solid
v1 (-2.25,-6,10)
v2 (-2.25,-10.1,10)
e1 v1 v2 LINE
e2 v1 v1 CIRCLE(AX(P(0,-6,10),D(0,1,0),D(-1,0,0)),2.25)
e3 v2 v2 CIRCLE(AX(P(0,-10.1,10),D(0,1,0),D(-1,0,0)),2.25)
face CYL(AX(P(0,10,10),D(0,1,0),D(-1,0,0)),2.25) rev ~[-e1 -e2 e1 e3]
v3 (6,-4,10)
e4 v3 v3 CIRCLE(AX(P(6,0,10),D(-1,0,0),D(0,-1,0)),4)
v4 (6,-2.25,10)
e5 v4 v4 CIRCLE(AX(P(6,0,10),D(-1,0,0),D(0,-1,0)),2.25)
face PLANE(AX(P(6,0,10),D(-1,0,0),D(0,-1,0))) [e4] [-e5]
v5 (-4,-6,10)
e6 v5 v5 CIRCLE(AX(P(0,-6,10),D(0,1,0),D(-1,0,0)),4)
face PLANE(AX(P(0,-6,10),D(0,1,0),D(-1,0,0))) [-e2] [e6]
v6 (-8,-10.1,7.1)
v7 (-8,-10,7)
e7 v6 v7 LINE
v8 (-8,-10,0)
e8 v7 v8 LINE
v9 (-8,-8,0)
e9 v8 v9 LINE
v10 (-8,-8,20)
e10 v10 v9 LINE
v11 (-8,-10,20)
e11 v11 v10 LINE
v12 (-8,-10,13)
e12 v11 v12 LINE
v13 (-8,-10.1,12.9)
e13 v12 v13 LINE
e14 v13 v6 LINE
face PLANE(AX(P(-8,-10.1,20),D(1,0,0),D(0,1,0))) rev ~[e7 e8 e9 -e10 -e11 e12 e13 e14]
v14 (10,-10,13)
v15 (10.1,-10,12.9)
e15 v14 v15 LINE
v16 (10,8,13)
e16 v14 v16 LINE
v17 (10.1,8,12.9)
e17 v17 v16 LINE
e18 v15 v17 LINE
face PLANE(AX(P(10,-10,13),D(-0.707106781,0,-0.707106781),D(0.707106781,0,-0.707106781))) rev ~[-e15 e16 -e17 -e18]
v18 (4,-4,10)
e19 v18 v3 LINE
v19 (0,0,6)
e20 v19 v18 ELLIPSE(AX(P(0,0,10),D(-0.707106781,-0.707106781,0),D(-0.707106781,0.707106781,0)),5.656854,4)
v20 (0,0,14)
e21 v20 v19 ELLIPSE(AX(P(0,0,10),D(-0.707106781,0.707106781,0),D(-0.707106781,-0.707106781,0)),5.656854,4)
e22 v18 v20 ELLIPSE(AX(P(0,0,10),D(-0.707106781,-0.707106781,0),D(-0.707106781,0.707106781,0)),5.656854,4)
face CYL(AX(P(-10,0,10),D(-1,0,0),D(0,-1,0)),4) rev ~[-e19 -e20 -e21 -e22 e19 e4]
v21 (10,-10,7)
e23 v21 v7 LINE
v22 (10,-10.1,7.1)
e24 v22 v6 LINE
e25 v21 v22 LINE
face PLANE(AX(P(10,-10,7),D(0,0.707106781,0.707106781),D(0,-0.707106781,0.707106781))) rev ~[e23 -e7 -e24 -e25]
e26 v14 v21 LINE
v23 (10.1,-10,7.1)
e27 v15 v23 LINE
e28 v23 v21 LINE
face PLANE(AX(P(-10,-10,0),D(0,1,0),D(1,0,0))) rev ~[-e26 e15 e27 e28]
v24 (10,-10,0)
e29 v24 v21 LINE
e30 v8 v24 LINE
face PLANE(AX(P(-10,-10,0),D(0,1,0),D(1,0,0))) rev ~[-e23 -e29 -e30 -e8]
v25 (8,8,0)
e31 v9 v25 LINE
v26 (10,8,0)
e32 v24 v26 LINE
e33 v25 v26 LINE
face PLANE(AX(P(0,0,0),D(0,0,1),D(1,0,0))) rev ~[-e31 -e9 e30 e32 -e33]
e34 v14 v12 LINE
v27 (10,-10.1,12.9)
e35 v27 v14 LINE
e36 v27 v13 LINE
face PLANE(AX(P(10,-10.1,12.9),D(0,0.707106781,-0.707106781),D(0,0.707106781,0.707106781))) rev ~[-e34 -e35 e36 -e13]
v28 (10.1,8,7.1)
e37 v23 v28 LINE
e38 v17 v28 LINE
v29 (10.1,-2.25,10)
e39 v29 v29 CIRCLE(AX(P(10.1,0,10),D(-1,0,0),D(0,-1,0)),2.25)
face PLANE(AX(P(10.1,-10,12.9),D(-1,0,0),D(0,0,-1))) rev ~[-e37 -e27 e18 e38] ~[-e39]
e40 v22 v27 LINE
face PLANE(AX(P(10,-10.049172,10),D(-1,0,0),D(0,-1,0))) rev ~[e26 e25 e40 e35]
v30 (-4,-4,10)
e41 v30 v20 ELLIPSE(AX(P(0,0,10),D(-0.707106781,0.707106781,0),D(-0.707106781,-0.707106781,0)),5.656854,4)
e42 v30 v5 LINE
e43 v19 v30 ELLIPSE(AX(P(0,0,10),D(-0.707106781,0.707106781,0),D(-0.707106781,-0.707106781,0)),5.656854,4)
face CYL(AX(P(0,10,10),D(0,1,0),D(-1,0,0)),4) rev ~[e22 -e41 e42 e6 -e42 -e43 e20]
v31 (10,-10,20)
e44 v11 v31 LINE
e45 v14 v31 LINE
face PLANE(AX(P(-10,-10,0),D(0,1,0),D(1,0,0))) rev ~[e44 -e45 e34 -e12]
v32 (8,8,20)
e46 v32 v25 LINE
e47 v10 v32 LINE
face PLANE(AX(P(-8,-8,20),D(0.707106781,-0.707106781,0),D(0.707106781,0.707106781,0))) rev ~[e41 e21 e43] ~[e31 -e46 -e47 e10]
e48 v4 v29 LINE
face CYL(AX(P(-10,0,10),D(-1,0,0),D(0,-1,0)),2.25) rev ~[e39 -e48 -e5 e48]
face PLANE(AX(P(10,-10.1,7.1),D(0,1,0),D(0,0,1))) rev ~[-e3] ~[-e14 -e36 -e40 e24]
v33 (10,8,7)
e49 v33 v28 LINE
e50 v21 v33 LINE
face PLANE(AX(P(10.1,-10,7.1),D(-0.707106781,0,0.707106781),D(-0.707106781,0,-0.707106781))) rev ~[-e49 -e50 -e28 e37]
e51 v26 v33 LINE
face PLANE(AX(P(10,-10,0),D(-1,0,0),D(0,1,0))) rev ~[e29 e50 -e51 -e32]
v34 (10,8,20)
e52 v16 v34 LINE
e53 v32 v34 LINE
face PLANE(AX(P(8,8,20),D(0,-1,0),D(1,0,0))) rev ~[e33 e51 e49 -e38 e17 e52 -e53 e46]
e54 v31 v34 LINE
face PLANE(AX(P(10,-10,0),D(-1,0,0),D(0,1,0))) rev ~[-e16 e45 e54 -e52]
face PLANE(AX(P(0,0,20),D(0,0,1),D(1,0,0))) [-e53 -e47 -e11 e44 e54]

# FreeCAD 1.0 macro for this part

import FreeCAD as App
import Part
import Sketcher

V = App.Vector


def add_polygon(sketch, points):
    """Adds a closed chain of lines whose ends are joined by coincident constraints."""
    first, n = sketch.GeometryCount, len(points)
    for a, b in zip(points, points[1:] + points[:1]):
        sketch.addGeometry(Part.LineSegment(App.Vector(*a, 0), App.Vector(*b, 0)), False)
    for i in range(n):
        sketch.addConstraint(Sketcher.Constraint("Coincident", first + i, 2, first + (i + 1) % n, 1))

doc = App.newDocument("Part")
body = doc.addObject("PartDesign::Body", "Body")

sketch1 = body.newObject("Sketcher::SketchObject", "Sketch")
sketch1.AttachmentSupport = (doc.getObject("XY_Plane"), [""])
sketch1.MapMode = "FlatFace"
add_polygon(sketch1, [(-10, 10), (-10, -10), (10, -10), (10, 10)])
sketch1.addConstraint([
    Sketcher.Constraint("Vertical", 0),
    Sketcher.Constraint("Horizontal", 1),
    Sketcher.Constraint("Vertical", 2),
    Sketcher.Constraint("Horizontal", 3),
    Sketcher.Constraint("Symmetric", 0, 2, 2, 2, -1, 1),
    Sketcher.Constraint("Equal", 3, 0),
    Sketcher.Constraint("DistanceX", 1, 1, 1, 2, 20.0),
])
pad1 = body.newObject("PartDesign::Pad", "Pad")
pad1.Profile = sketch1
pad1.Length = 20

sketch2 = body.newObject("Sketcher::SketchObject", "Sketch001")
sketch2.AttachmentSupport = (doc.getObject("XZ_Plane"), [""])
sketch2.MapMode = "FlatFace"
sketch2.AttachmentOffset = App.Placement(V(0, 0, 10), App.Rotation())
add_polygon(sketch2, [(10.1, 12.9), (10, 13), (10, 7), (10.1, 7.1)])
sketch2.addConstraint([
    Sketcher.Constraint("Vertical", 1),
    Sketcher.Constraint("Vertical", 3),
    Sketcher.Constraint("Perpendicular", 0, 2),
    Sketcher.Constraint("Equal", 0, 2),
    Sketcher.Constraint("DistanceY", 1, 2, 1, 1, 6.0),
    Sketcher.Constraint("DistanceY", 3, 1, 3, 2, 5.8),
    Sketcher.Constraint("DistanceX", -1, 1, 0, 2, 10.0),
    Sketcher.Constraint("DistanceY", -1, 1, 0, 2, 13.0),
])
pad2 = body.newObject("PartDesign::Pad", "Pad001")
pad2.Profile = sketch2
pad2.Length = 20
pad2.Reversed = True

sketch3 = body.newObject("Sketcher::SketchObject", "Sketch002")
sketch3.AttachmentSupport = (doc.getObject("YZ_Plane"), [""])
sketch3.MapMode = "FlatFace"
sketch3.AttachmentOffset = App.Placement(V(0, 0, 10), App.Rotation())
add_polygon(sketch3, [(-10, 7), (-10, 13), (-10.1, 12.9), (-10.1, 7.1)])
sketch3.addConstraint([
    Sketcher.Constraint("Vertical", 0),
    Sketcher.Constraint("Vertical", 2),
    Sketcher.Constraint("Perpendicular", 1, 3),
    Sketcher.Constraint("Equal", 1, 3),
    Sketcher.Constraint("DistanceY", 0, 1, 0, 2, 6.0),
    Sketcher.Constraint("DistanceY", 2, 2, 2, 1, 5.8),
    Sketcher.Constraint("DistanceX", 0, 2, -1, 1, 10.0),
    Sketcher.Constraint("DistanceY", -1, 1, 0, 2, 13.0),
])
pad3 = body.newObject("PartDesign::Pad", "Pad002")
pad3.Profile = sketch3
pad3.Length = 20
pad3.Reversed = True

sketch4 = body.newObject("Sketcher::SketchObject", "Sketch003")
sketch4.AttachmentSupport = (doc.getObject("YZ_Plane"), [""])
sketch4.MapMode = "FlatFace"
sketch4.AttachmentOffset = App.Placement(V(0, 0, -10), App.Rotation())
sketch4.addGeometry([
    Part.Circle(V(-20, 10, 0), V(0, 0, 1), 2.25),
    Part.Circle(V(0, 10, 0), V(0, 0, 1), 2.25),
], False)
sketch4.addConstraint([
    Sketcher.Constraint("Equal", 0, 1),
    Sketcher.Constraint("PointOnObject", 1, 3, -2),
    Sketcher.Constraint("Horizontal", 0, 3, 1, 3),
    Sketcher.Constraint("Diameter", 0, 4.5),
    Sketcher.Constraint("DistanceX", 0, 3, -1, 1, 20.0),
    Sketcher.Constraint("DistanceY", -1, 1, 0, 3, 10.0),
])
pocket1 = body.newObject("PartDesign::Pocket", "Pocket")
pocket1.Profile = sketch4
pocket1.Length = 20.1
pocket1.Reversed = True

sketch5 = body.newObject("Sketcher::SketchObject", "Sketch004")
sketch5.AttachmentSupport = (doc.getObject("YZ_Plane"), [""])
sketch5.MapMode = "FlatFace"
sketch5.AttachmentOffset = App.Placement(V(0, 0, -10), App.Rotation())
sketch5.addGeometry([
    Part.Circle(V(-20, 10, 0), V(0, 0, 1), 4),
    Part.Circle(V(0, 10, 0), V(0, 0, 1), 4),
], False)
sketch5.addConstraint([
    Sketcher.Constraint("Equal", 0, 1),
    Sketcher.Constraint("PointOnObject", 1, 3, -2),
    Sketcher.Constraint("Horizontal", 0, 3, 1, 3),
    Sketcher.Constraint("Diameter", 0, 8.0),
    Sketcher.Constraint("DistanceX", 0, 3, -1, 1, 20.0),
    Sketcher.Constraint("DistanceY", -1, 1, 0, 3, 10.0),
])
pocket2 = body.newObject("PartDesign::Pocket", "Pocket001")
pocket2.Profile = sketch5
pocket2.Length = 16
pocket2.Reversed = True

sketch6 = body.newObject("Sketcher::SketchObject", "Sketch005")
sketch6.AttachmentSupport = (doc.getObject("XZ_Plane"), [""])
sketch6.MapMode = "FlatFace"
sketch6.AttachmentOffset = App.Placement(V(0, 0, -10), App.Rotation())
sketch6.addGeometry([
    Part.Circle(V(0, 10, 0), V(0, 0, 1), 2.25),
    Part.Circle(V(-20, 10, 0), V(0, 0, 1), 2.25),
], False)
sketch6.addConstraint([
    Sketcher.Constraint("Equal", 0, 1),
    Sketcher.Constraint("PointOnObject", 0, 3, -2),
    Sketcher.Constraint("Horizontal", 0, 3, 1, 3),
    Sketcher.Constraint("Diameter", 0, 4.5),
    Sketcher.Constraint("DistanceY", -1, 1, 0, 3, 10.0),
    Sketcher.Constraint("DistanceX", 1, 3, -1, 1, 20.0),
])
pocket3 = body.newObject("PartDesign::Pocket", "Pocket002")
pocket3.Profile = sketch6
pocket3.Length = 20.1
pocket3.Reversed = True

sketch7 = body.newObject("Sketcher::SketchObject", "Sketch006")
sketch7.AttachmentSupport = (doc.getObject("XZ_Plane"), [""])
sketch7.MapMode = "FlatFace"
sketch7.AttachmentOffset = App.Placement(V(0, 0, -10), App.Rotation())
sketch7.addGeometry([
    Part.Circle(V(0, 10, 0), V(0, 0, 1), 4),
    Part.Circle(V(-20, 10, 0), V(0, 0, 1), 4),
], False)
sketch7.addConstraint([
    Sketcher.Constraint("Equal", 0, 1),
    Sketcher.Constraint("PointOnObject", 0, 3, -2),
    Sketcher.Constraint("Horizontal", 0, 3, 1, 3),
    Sketcher.Constraint("Diameter", 0, 8.0),
    Sketcher.Constraint("DistanceY", -1, 1, 0, 3, 10.0),
    Sketcher.Constraint("DistanceX", 1, 3, -1, 1, 20.0),
])
pocket4 = body.newObject("PartDesign::Pocket", "Pocket003")
pocket4.Profile = sketch7
pocket4.Length = 16
pocket4.Reversed = True

sketch8 = body.newObject("Sketcher::SketchObject", "Sketch007")
sketch8.AttachmentSupport = (doc.getObject("XY_Plane"), [""])
sketch8.MapMode = "FlatFace"
sketch8.AttachmentOffset = App.Placement(V(0, 0, 20), App.Rotation())
add_polygon(sketch8, [(10.1, 10.1), (-10.1, 10.1), (-10.1, -10.1), (-8, -10.1), (-8, -8), (8, 8), (10.1, 8)])
sketch8.addConstraint([
    Sketcher.Constraint("Horizontal", 0),
    Sketcher.Constraint("Vertical", 1),
    Sketcher.Constraint("Horizontal", 2),
    Sketcher.Constraint("Vertical", 3),
    Sketcher.Constraint("Horizontal", 5),
    Sketcher.Constraint("Vertical", 6),
    Sketcher.Constraint("Symmetric", 3, 2, 4, 2, -1, 1),
    Sketcher.Constraint("Symmetric", 1, 2, 6, 2, -1, 1),
    Sketcher.Constraint("Equal", 0, 1),
    Sketcher.Constraint("Equal", 5, 3),
    Sketcher.Constraint("DistanceX", 0, 2, 0, 1, 20.2),
    Sketcher.Constraint("DistanceX", 2, 1, 2, 2, 2.1),
])
pocket5 = body.newObject("PartDesign::Pocket", "Pocket004")
pocket5.Profile = sketch8
pocket5.Length = 20

doc.recompute()
